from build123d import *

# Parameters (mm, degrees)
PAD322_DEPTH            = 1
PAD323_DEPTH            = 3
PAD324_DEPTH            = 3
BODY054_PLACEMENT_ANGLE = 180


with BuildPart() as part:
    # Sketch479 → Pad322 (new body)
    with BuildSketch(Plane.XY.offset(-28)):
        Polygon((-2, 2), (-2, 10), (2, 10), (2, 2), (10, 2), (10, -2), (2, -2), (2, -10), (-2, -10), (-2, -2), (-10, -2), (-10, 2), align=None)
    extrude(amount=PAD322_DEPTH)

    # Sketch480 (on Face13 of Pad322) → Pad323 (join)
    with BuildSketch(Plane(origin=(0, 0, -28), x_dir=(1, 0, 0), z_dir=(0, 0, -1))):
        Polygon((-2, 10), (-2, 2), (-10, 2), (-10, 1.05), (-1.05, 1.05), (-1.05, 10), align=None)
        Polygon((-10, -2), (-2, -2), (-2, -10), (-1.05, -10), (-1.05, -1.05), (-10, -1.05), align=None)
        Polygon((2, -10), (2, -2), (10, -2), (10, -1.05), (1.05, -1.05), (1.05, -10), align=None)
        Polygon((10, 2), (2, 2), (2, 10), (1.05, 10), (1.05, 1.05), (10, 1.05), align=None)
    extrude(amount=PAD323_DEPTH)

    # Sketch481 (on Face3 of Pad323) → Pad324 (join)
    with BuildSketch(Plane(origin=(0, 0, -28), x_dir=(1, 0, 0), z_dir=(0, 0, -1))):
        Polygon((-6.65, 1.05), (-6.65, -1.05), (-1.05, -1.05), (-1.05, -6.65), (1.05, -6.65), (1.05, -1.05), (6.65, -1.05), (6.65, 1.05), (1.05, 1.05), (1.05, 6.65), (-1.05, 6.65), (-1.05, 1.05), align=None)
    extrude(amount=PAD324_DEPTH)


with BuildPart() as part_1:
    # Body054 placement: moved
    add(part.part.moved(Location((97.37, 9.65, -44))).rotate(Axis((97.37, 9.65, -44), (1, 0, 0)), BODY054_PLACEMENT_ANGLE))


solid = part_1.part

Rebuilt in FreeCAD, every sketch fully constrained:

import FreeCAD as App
import Part
import Sketcher
from FreeCAD import Vector
Q = App.Units.Quantity

doc = App.newDocument("Part")
params = doc.addObject("Spreadsheet::Sheet", "Params")
for row, (alias, value) in enumerate([
    ("sketch1_width", "8 mm"),
    ("sketch1_width2", "4 mm"),
    ("pad1_length", "1 mm"),
    ("sketch2_width", "8 mm"),
    ("sketch2_width2", "8.95 mm"),
    ("pad2_length", "3 mm"),
    ("sketch3_width", "5.6 mm"),
    ("sketch3_width2", "2.1 mm"),
    ("pad3_length", "3 mm"),
], start=1):
    params.set(f"A{row}", alias)
    params.set(f"B{row}", "=" + value)
    params.setAlias(f"B{row}", alias)

body = doc.addObject("PartDesign::Body", "Body")

# Sketch on XY plane
sketch1 = body.newObject("Sketcher::SketchObject", "Sketch")
sketch1.AttachmentSupport = (doc.getObject("XY_Plane"), [""])
sketch1.MapMode = "FlatFace"
sketch1.AttachmentOffset = App.Placement(Vector(0, 0, -28), App.Rotation())
sketch1.addGeometry(Part.LineSegment(Vector(-2, 10, 0), Vector(-2, 2, 0)), False)
sketch1.addGeometry(Part.LineSegment(Vector(-2, 2, 0), Vector(-10, 2, 0)), False)
sketch1.addGeometry(Part.LineSegment(Vector(-10, 2, 0), Vector(-10, -2, 0)), False)
sketch1.addGeometry(Part.LineSegment(Vector(-10, -2, 0), Vector(-2, -2, 0)), False)
sketch1.addGeometry(Part.LineSegment(Vector(-2, -2, 0), Vector(-2, -10, 0)), False)
sketch1.addGeometry(Part.LineSegment(Vector(-2, -10, 0), Vector(2, -10, 0)), False)
sketch1.addGeometry(Part.LineSegment(Vector(2, -10, 0), Vector(2, -2, 0)), False)
sketch1.addGeometry(Part.LineSegment(Vector(2, -2, 0), Vector(10, -2, 0)), False)
sketch1.addGeometry(Part.LineSegment(Vector(10, -2, 0), Vector(10, 2, 0)), False)
sketch1.addGeometry(Part.LineSegment(Vector(10, 2, 0), Vector(2, 2, 0)), False)
sketch1.addGeometry(Part.LineSegment(Vector(2, 2, 0), Vector(2, 10, 0)), False)
sketch1.addGeometry(Part.LineSegment(Vector(2, 10, 0), Vector(-2, 10, 0)), False)
sketch1.addConstraint(Sketcher.Constraint("Coincident", 0, 2, 1, 1))
sketch1.addConstraint(Sketcher.Constraint("Coincident", 1, 2, 2, 1))
sketch1.addConstraint(Sketcher.Constraint("Coincident", 2, 2, 3, 1))
sketch1.addConstraint(Sketcher.Constraint("Coincident", 3, 2, 4, 1))
sketch1.addConstraint(Sketcher.Constraint("Coincident", 4, 2, 5, 1))
sketch1.addConstraint(Sketcher.Constraint("Coincident", 5, 2, 6, 1))
sketch1.addConstraint(Sketcher.Constraint("Coincident", 6, 2, 7, 1))
sketch1.addConstraint(Sketcher.Constraint("Coincident", 7, 2, 8, 1))
sketch1.addConstraint(Sketcher.Constraint("Coincident", 8, 2, 9, 1))
sketch1.addConstraint(Sketcher.Constraint("Coincident", 9, 2, 10, 1))
sketch1.addConstraint(Sketcher.Constraint("Coincident", 10, 2, 11, 1))
sketch1.addConstraint(Sketcher.Constraint("Coincident", 11, 2, 0, 1))
sketch1.addConstraint(Sketcher.Constraint("Vertical", 0))
sketch1.addConstraint(Sketcher.Constraint("Horizontal", 1))
sketch1.addConstraint(Sketcher.Constraint("Vertical", 2))
sketch1.addConstraint(Sketcher.Constraint("Horizontal", 3))
sketch1.addConstraint(Sketcher.Constraint("Vertical", 4))
sketch1.addConstraint(Sketcher.Constraint("Horizontal", 5))
sketch1.addConstraint(Sketcher.Constraint("Vertical", 6))
sketch1.addConstraint(Sketcher.Constraint("Horizontal", 7))
sketch1.addConstraint(Sketcher.Constraint("Vertical", 8))
sketch1.addConstraint(Sketcher.Constraint("Horizontal", 9))
sketch1.addConstraint(Sketcher.Constraint("Vertical", 10))
sketch1.addConstraint(Sketcher.Constraint("Horizontal", 11))
sketch1.addConstraint(Sketcher.Constraint("Symmetric", 0, 2, 6, 2, -1, 1))
sketch1.addConstraint(Sketcher.Constraint("Symmetric", 2, 2, 8, 2, -1, 1))
sketch1.addConstraint(Sketcher.Constraint("Symmetric", 4, 2, 10, 2, -1, 1))
sketch1.addConstraint(Sketcher.Constraint("Symmetric", 3, 2, 6, 2, -2))
sketch1.addConstraint(Sketcher.Constraint("Equal", 9, 0))
sketch1.addConstraint(Sketcher.Constraint("Equal", 11, 2))
sketch1.addConstraint(Sketcher.Constraint("DistanceX", 1, 2, 1, 1, Q("8 mm")))
sketch1.addConstraint(Sketcher.Constraint("DistanceX", 5, 1, 5, 2, Q("4 mm")))
sketch1.setExpression("Constraints[30]", "Params.sketch1_width")
sketch1.setExpression("Constraints[31]", "Params.sketch1_width2")
pad1 = body.newObject("PartDesign::Pad", "Pad")
pad1.Profile = sketch1
pad1.setExpression("Length", "Params.pad1_length")

# Sketch on XY plane
sketch2 = body.newObject("Sketcher::SketchObject", "Sketch001")
sketch2.AttachmentSupport = (doc.getObject("XY_Plane"), [""])
sketch2.MapMode = "FlatFace"
sketch2.AttachmentOffset = App.Placement(Vector(0, 0, -28), App.Rotation())
sketch2.addGeometry(Part.LineSegment(Vector(-2, -10, 0), Vector(-2, -2, 0)), False)
sketch2.addGeometry(Part.LineSegment(Vector(-2, -2, 0), Vector(-10, -2, 0)), False)
sketch2.addGeometry(Part.LineSegment(Vector(-10, -2, 0), Vector(-10, -1.05, 0)), False)
sketch2.addGeometry(Part.LineSegment(Vector(-10, -1.05, 0), Vector(-1.05, -1.05, 0)), False)
sketch2.addGeometry(Part.LineSegment(Vector(-1.05, -1.05, 0), Vector(-1.05, -10, 0)), False)
sketch2.addGeometry(Part.LineSegment(Vector(-1.05, -10, 0), Vector(-2, -10, 0)), False)
sketch2.addGeometry(Part.LineSegment(Vector(-10, 2, 0), Vector(-2, 2, 0)), False)
sketch2.addGeometry(Part.LineSegment(Vector(-2, 2, 0), Vector(-2, 10, 0)), False)
sketch2.addGeometry(Part.LineSegment(Vector(-2, 10, 0), Vector(-1.05, 10, 0)), False)
sketch2.addGeometry(Part.LineSegment(Vector(-1.05, 10, 0), Vector(-1.05, 1.05, 0)), False)
sketch2.addGeometry(Part.LineSegment(Vector(-1.05, 1.05, 0), Vector(-10, 1.05, 0)), False)
sketch2.addGeometry(Part.LineSegment(Vector(-10, 1.05, 0), Vector(-10, 2, 0)), False)
sketch2.addGeometry(Part.LineSegment(Vector(2, 10, 0), Vector(2, 2, 0)), False)
sketch2.addGeometry(Part.LineSegment(Vector(2, 2, 0), Vector(10, 2, 0)), False)
sketch2.addGeometry(Part.LineSegment(Vector(10, 2, 0), Vector(10, 1.05, 0)), False)
sketch2.addGeometry(Part.LineSegment(Vector(10, 1.05, 0), Vector(1.05, 1.05, 0)), False)
sketch2.addGeometry(Part.LineSegment(Vector(1.05, 1.05, 0), Vector(1.05, 10, 0)), False)
sketch2.addGeometry(Part.LineSegment(Vector(1.05, 10, 0), Vector(2, 10, 0)), False)
sketch2.addGeometry(Part.LineSegment(Vector(10, -2, 0), Vector(2, -2, 0)), False)
sketch2.addGeometry(Part.LineSegment(Vector(2, -2, 0), Vector(2, -10, 0)), False)
sketch2.addGeometry(Part.LineSegment(Vector(2, -10, 0), Vector(1.05, -10, 0)), False)
sketch2.addGeometry(Part.LineSegment(Vector(1.05, -10, 0), Vector(1.05, -1.05, 0)), False)
sketch2.addGeometry(Part.LineSegment(Vector(1.05, -1.05, 0), Vector(10, -1.05, 0)), False)
sketch2.addGeometry(Part.LineSegment(Vector(10, -1.05, 0), Vector(10, -2, 0)), False)
sketch2.addConstraint(Sketcher.Constraint("Coincident", 0, 2, 1, 1))
sketch2.addConstraint(Sketcher.Constraint("Coincident", 1, 2, 2, 1))
sketch2.addConstraint(Sketcher.Constraint("Coincident", 2, 2, 3, 1))
sketch2.addConstraint(Sketcher.Constraint("Coincident", 3, 2, 4, 1))
sketch2.addConstraint(Sketcher.Constraint("Coincident", 4, 2, 5, 1))
sketch2.addConstraint(Sketcher.Constraint("Coincident", 5, 2, 0, 1))
sketch2.addConstraint(Sketcher.Constraint("Coincident", 6, 2, 7, 1))
sketch2.addConstraint(Sketcher.Constraint("Coincident", 7, 2, 8, 1))
sketch2.addConstraint(Sketcher.Constraint("Coincident", 8, 2, 9, 1))
sketch2.addConstraint(Sketcher.Constraint("Coincident", 9, 2, 10, 1))
sketch2.addConstraint(Sketcher.Constraint("Coincident", 10, 2, 11, 1))
sketch2.addConstraint(Sketcher.Constraint("Coincident", 11, 2, 6, 1))
sketch2.addConstraint(Sketcher.Constraint("Coincident", 12, 2, 13, 1))
sketch2.addConstraint(Sketcher.Constraint("Coincident", 13, 2, 14, 1))
sketch2.addConstraint(Sketcher.Constraint("Coincident", 14, 2, 15, 1))
sketch2.addConstraint(Sketcher.Constraint("Coincident", 15, 2, 16, 1))
sketch2.addConstraint(Sketcher.Constraint("Coincident", 16, 2, 17, 1))
sketch2.addConstraint(Sketcher.Constraint("Coincident", 17, 2, 12, 1))
sketch2.addConstraint(Sketcher.Constraint("Coincident", 18, 2, 19, 1))
sketch2.addConstraint(Sketcher.Constraint("Coincident", 19, 2, 20, 1))
sketch2.addConstraint(Sketcher.Constraint("Coincident", 20, 2, 21, 1))
sketch2.addConstraint(Sketcher.Constraint("Coincident", 21, 2, 22, 1))
sketch2.addConstraint(Sketcher.Constraint("Coincident", 22, 2, 23, 1))
sketch2.addConstraint(Sketcher.Constraint("Coincident", 23, 2, 18, 1))
sketch2.addConstraint(Sketcher.Constraint("Vertical", 0))
sketch2.addConstraint(Sketcher.Constraint("Horizontal", 1))
sketch2.addConstraint(Sketcher.Constraint("Vertical", 2))
sketch2.addConstraint(Sketcher.Constraint("Horizontal", 3))
sketch2.addConstraint(Sketcher.Constraint("Vertical", 4))
sketch2.addConstraint(Sketcher.Constraint("Horizontal", 5))
sketch2.addConstraint(Sketcher.Constraint("Horizontal", 6))
sketch2.addConstraint(Sketcher.Constraint("Vertical", 7))
sketch2.addConstraint(Sketcher.Constraint("Horizontal", 8))
sketch2.addConstraint(Sketcher.Constraint("Vertical", 9))
sketch2.addConstraint(Sketcher.Constraint("Horizontal", 10))
sketch2.addConstraint(Sketcher.Constraint("Vertical", 11))
sketch2.addConstraint(Sketcher.Constraint("Vertical", 12))
sketch2.addConstraint(Sketcher.Constraint("Horizontal", 13))
sketch2.addConstraint(Sketcher.Constraint("Vertical", 14))
sketch2.addConstraint(Sketcher.Constraint("Horizontal", 15))
sketch2.addConstraint(Sketcher.Constraint("Vertical", 16))
sketch2.addConstraint(Sketcher.Constraint("Horizontal", 17))
sketch2.addConstraint(Sketcher.Constraint("Horizontal", 18))
sketch2.addConstraint(Sketcher.Constraint("Vertical", 19))
sketch2.addConstraint(Sketcher.Constraint("Horizontal", 20))
sketch2.addConstraint(Sketcher.Constraint("Vertical", 21))
sketch2.addConstraint(Sketcher.Constraint("Horizontal", 22))
sketch2.addConstraint(Sketcher.Constraint("Vertical", 23))
sketch2.addConstraint(Sketcher.Constraint("Symmetric", 0, 2, 12, 2, -1, 1))
sketch2.addConstraint(Sketcher.Constraint("Symmetric", 2, 2, 14, 2, -1, 1))
sketch2.addConstraint(Sketcher.Constraint("Symmetric", 4, 2, 16, 2, -1, 1))
sketch2.addConstraint(Sketcher.Constraint("Symmetric", 6, 2, 18, 2, -1, 1))
sketch2.addConstraint(Sketcher.Constraint("Symmetric", 8, 2, 20, 2, -1, 1))
sketch2.addConstraint(Sketcher.Constraint("Symmetric", 10, 2, 22, 2, -1, 1))
sketch2.addConstraint(Sketcher.Constraint("Symmetric", 6, 2, 12, 2, -2))
sketch2.addConstraint(Sketcher.Constraint("Symmetric", 10, 2, 14, 2, -2))
sketch2.addConstraint(Sketcher.Constraint("Symmetric", 8, 2, 16, 2, -2))
sketch2.addConstraint(Sketcher.Constraint("Equal", 18, 0))
sketch2.addConstraint(Sketcher.Constraint("Equal", 20, 2))
sketch2.addConstraint(Sketcher.Constraint("DistanceX", 1, 2, 1, 1, Q("8 mm")))
sketch2.addConstraint(Sketcher.Constraint("DistanceX", 0, 2, -1, 1, Q("2 mm")))
sketch2.addConstraint(Sketcher.Constraint("DistanceY", 0, 2, -1, 1, Q("2 mm")))
sketch2.addConstraint(Sketcher.Constraint("DistanceX", 3, 1, 3, 2, Q("8.95 mm")))
sketch2.setExpression("Constraints[59]", "Params.sketch2_width")
sketch2.setExpression("Constraints[62]", "Params.sketch2_width2")
pad2 = body.newObject("PartDesign::Pad", "Pad001")
pad2.Profile = sketch2
pad2.setExpression("Length", "Params.pad2_length")
pad2.Reversed = True

# Sketch on XY plane
sketch3 = body.newObject("Sketcher::SketchObject", "Sketch002")
sketch3.AttachmentSupport = (doc.getObject("XY_Plane"), [""])
sketch3.MapMode = "FlatFace"
sketch3.AttachmentOffset = App.Placement(Vector(0, 0, -28), App.Rotation())
sketch3.addGeometry(Part.LineSegment(Vector(-6.65, -1.05, 0), Vector(-6.65, 1.05, 0)), False)
sketch3.addGeometry(Part.LineSegment(Vector(-6.65, 1.05, 0), Vector(-1.05, 1.05, 0)), False)
sketch3.addGeometry(Part.LineSegment(Vector(-1.05, 1.05, 0), Vector(-1.05, 6.65, 0)), False)
sketch3.addGeometry(Part.LineSegment(Vector(-1.05, 6.65, 0), Vector(1.05, 6.65, 0)), False)
sketch3.addGeometry(Part.LineSegment(Vector(1.05, 6.65, 0), Vector(1.05, 1.05, 0)), False)
sketch3.addGeometry(Part.LineSegment(Vector(1.05, 1.05, 0), Vector(6.65, 1.05, 0)), False)
sketch3.addGeometry(Part.LineSegment(Vector(6.65, 1.05, 0), Vector(6.65, -1.05, 0)), False)
sketch3.addGeometry(Part.LineSegment(Vector(6.65, -1.05, 0), Vector(1.05, -1.05, 0)), False)
sketch3.addGeometry(Part.LineSegment(Vector(1.05, -1.05, 0), Vector(1.05, -6.65, 0)), False)
sketch3.addGeometry(Part.LineSegment(Vector(1.05, -6.65, 0), Vector(-1.05, -6.65, 0)), False)
sketch3.addGeometry(Part.LineSegment(Vector(-1.05, -6.65, 0), Vector(-1.05, -1.05, 0)), False)
sketch3.addGeometry(Part.LineSegment(Vector(-1.05, -1.05, 0), Vector(-6.65, -1.05, 0)), False)
sketch3.addConstraint(Sketcher.Constraint("Coincident", 0, 2, 1, 1))
sketch3.addConstraint(Sketcher.Constraint("Coincident", 1, 2, 2, 1))
sketch3.addConstraint(Sketcher.Constraint("Coincident", 2, 2, 3, 1))
sketch3.addConstraint(Sketcher.Constraint("Coincident", 3, 2, 4, 1))
sketch3.addConstraint(Sketcher.Constraint("Coincident", 4, 2, 5, 1))
sketch3.addConstraint(Sketcher.Constraint("Coincident", 5, 2, 6, 1))
sketch3.addConstraint(Sketcher.Constraint("Coincident", 6, 2, 7, 1))
sketch3.addConstraint(Sketcher.Constraint("Coincident", 7, 2, 8, 1))
sketch3.addConstraint(Sketcher.Constraint("Coincident", 8, 2, 9, 1))
sketch3.addConstraint(Sketcher.Constraint("Coincident", 9, 2, 10, 1))
sketch3.addConstraint(Sketcher.Constraint("Coincident", 10, 2, 11, 1))
sketch3.addConstraint(Sketcher.Constraint("Coincident", 11, 2, 0, 1))
sketch3.addConstraint(Sketcher.Constraint("Vertical", 0))
sketch3.addConstraint(Sketcher.Constraint("Horizontal", 1))
sketch3.addConstraint(Sketcher.Constraint("Vertical", 2))
sketch3.addConstraint(Sketcher.Constraint("Horizontal", 3))
sketch3.addConstraint(Sketcher.Constraint("Vertical", 4))
sketch3.addConstraint(Sketcher.Constraint("Horizontal", 5))
sketch3.addConstraint(Sketcher.Constraint("Vertical", 6))
sketch3.addConstraint(Sketcher.Constraint("Horizontal", 7))
sketch3.addConstraint(Sketcher.Constraint("Vertical", 8))
sketch3.addConstraint(Sketcher.Constraint("Horizontal", 9))
sketch3.addConstraint(Sketcher.Constraint("Vertical", 10))
sketch3.addConstraint(Sketcher.Constraint("Horizontal", 11))
sketch3.addConstraint(Sketcher.Constraint("Symmetric", 0, 2, 6, 2, -1, 1))
sketch3.addConstraint(Sketcher.Constraint("Symmetric", 2, 2, 8, 2, -1, 1))
sketch3.addConstraint(Sketcher.Constraint("Symmetric", 4, 2, 10, 2, -1, 1))
sketch3.addConstraint(Sketcher.Constraint("Symmetric", 1, 2, 4, 2, -2))
sketch3.addConstraint(Sketcher.Constraint("Equal", 9, 0))
sketch3.addConstraint(Sketcher.Constraint("Equal", 11, 2))
sketch3.addConstraint(Sketcher.Constraint("DistanceX", 1, 1, 1, 2, Q("5.6 mm")))
sketch3.addConstraint(Sketcher.Constraint("DistanceX", 3, 1, 3, 2, Q("2.1 mm")))
sketch3.setExpression("Constraints[30]", "Params.sketch3_width")
sketch3.setExpression("Constraints[31]", "Params.sketch3_width2")
pad3 = body.newObject("PartDesign::Pad", "Pad002")
pad3.Profile = sketch3
pad3.setExpression("Length", "Params.pad3_length")
pad3.Reversed = True
body2 = doc.addObject("PartDesign::Body", "Body001")
doc.recompute()

body.Placement = App.Placement(Vector(97.37, 9.65, -44), App.Rotation(Vector(1, 0, 0), 180))
boolean = body2.newObject("PartDesign::Boolean", "Boolean")
boolean.Type = "Fuse"
boolean.addObjects([body])

doc.recompute()
